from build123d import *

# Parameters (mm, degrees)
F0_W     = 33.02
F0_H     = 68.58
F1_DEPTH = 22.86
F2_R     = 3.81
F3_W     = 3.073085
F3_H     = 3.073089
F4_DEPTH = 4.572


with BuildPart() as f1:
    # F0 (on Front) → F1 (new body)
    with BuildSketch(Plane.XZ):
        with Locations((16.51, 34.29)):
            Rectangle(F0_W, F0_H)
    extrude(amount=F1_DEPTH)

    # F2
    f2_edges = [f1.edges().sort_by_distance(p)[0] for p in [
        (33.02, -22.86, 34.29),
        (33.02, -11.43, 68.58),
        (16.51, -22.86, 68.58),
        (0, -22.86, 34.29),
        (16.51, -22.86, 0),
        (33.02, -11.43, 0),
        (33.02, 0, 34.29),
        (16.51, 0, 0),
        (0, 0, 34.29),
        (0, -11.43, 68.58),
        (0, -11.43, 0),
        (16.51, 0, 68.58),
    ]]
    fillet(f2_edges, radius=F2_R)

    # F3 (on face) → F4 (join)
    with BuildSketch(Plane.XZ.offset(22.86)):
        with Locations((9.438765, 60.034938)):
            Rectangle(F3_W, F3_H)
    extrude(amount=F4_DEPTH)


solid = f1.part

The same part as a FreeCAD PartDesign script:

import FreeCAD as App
import Part
import Sketcher

V = App.Vector
Q = App.Units.Quantity

doc = App.newDocument("Part")
body = doc.addObject("PartDesign::Body", "Body")

# Sketch on XZ plane
sketch1 = doc.addObject("Sketcher::SketchObject", "Sketch")
body.addObject(sketch1)
sketch1.AttachmentSupport = (doc.XZ_Plane, [""])
sketch1.MapMode = "FlatFace"
sketch1.addGeometry(Part.LineSegment(V(0, 69, 0), V(0, 0, 0)), False)
sketch1.addGeometry(Part.LineSegment(V(0, 0, 0), V(33, 0, 0)), False)
sketch1.addGeometry(Part.LineSegment(V(33, 0, 0), V(33, 69, 0)), False)
sketch1.addGeometry(Part.LineSegment(V(33, 69, 0), V(0, 69, 0)), False)
sketch1.addConstraint(Sketcher.Constraint("Coincident", 0, 2, 1, 1))
sketch1.addConstraint(Sketcher.Constraint("Coincident", 1, 2, 2, 1))
sketch1.addConstraint(Sketcher.Constraint("Coincident", 2, 2, 3, 1))
sketch1.addConstraint(Sketcher.Constraint("Coincident", 3, 2, 0, 1))
sketch1.addConstraint(Sketcher.Constraint("Vertical", 0))
sketch1.addConstraint(Sketcher.Constraint("Horizontal", 1))
sketch1.addConstraint(Sketcher.Constraint("Vertical", 2))
sketch1.addConstraint(Sketcher.Constraint("Horizontal", 3))
sketch1.addConstraint(Sketcher.Constraint("Coincident", 0, 2, -1, 1))
sketch1.addConstraint(Sketcher.Constraint("DistanceX", 1, 1, 1, 2, Q("1.3 in")))
sketch1.addConstraint(Sketcher.Constraint("DistanceY", 0, 2, 0, 1, Q("2.7 in")))
pad1 = doc.addObject("PartDesign::Pad", "Pad")
body.addObject(pad1)
pad1.Profile = sketch1
pad1.Length = Q("0.9 in")
doc.recompute()

fillet = doc.addObject("PartDesign::Fillet", "Fillet")
body.addObject(fillet)
fillet.Base = (pad1, ["Edge1"])
fillet.UseAllEdges = True
fillet.Radius = Q("0.15 in")

# Sketch on XZ plane
sketch2 = doc.addObject("Sketcher::SketchObject", "Sketch001")
body.addObject(sketch2)
sketch2.AttachmentSupport = (doc.XZ_Plane, [""])
sketch2.MapMode = "FlatFace"
sketch2.AttachmentOffset = App.Placement(V(0, 0, 0.9 * 25.4), App.Rotation())
sketch2.addGeometry(Part.LineSegment(V(7.9, 61.6, 0), V(7.9, 58.5, 0)), False)
sketch2.addGeometry(Part.LineSegment(V(7.9, 58.5, 0), V(11, 58.5, 0)), False)
sketch2.addGeometry(Part.LineSegment(V(11, 58.5, 0), V(11, 61.6, 0)), False)
sketch2.addGeometry(Part.LineSegment(V(11, 61.6, 0), V(7.9, 61.6, 0)), False)
sketch2.addConstraint(Sketcher.Constraint("Coincident", 0, 2, 1, 1))
sketch2.addConstraint(Sketcher.Constraint("Coincident", 1, 2, 2, 1))
sketch2.addConstraint(Sketcher.Constraint("Coincident", 2, 2, 3, 1))
sketch2.addConstraint(Sketcher.Constraint("Coincident", 3, 2, 0, 1))
sketch2.addConstraint(Sketcher.Constraint("Vertical", 0))
sketch2.addConstraint(Sketcher.Constraint("Horizontal", 1))
sketch2.addConstraint(Sketcher.Constraint("Vertical", 2))
sketch2.addConstraint(Sketcher.Constraint("Horizontal", 3))
sketch2.addConstraint(Sketcher.Constraint("DistanceY", 0, 2, 0, 1, 3.073089))
sketch2.addConstraint(Sketcher.Constraint("DistanceX", 1, 1, 1, 2, 3.073085))
sketch2.addConstraint(Sketcher.Constraint("DistanceX", -1, 1, 0, 2, 7.902222))
sketch2.addConstraint(Sketcher.Constraint("DistanceY", -1, 1, 0, 2, 58.498393))
pad2 = doc.addObject("PartDesign::Pad", "Pad001")
body.addObject(pad2)
pad2.Profile = sketch2
pad2.Length = Q("0.18 in")

doc.recompute()
